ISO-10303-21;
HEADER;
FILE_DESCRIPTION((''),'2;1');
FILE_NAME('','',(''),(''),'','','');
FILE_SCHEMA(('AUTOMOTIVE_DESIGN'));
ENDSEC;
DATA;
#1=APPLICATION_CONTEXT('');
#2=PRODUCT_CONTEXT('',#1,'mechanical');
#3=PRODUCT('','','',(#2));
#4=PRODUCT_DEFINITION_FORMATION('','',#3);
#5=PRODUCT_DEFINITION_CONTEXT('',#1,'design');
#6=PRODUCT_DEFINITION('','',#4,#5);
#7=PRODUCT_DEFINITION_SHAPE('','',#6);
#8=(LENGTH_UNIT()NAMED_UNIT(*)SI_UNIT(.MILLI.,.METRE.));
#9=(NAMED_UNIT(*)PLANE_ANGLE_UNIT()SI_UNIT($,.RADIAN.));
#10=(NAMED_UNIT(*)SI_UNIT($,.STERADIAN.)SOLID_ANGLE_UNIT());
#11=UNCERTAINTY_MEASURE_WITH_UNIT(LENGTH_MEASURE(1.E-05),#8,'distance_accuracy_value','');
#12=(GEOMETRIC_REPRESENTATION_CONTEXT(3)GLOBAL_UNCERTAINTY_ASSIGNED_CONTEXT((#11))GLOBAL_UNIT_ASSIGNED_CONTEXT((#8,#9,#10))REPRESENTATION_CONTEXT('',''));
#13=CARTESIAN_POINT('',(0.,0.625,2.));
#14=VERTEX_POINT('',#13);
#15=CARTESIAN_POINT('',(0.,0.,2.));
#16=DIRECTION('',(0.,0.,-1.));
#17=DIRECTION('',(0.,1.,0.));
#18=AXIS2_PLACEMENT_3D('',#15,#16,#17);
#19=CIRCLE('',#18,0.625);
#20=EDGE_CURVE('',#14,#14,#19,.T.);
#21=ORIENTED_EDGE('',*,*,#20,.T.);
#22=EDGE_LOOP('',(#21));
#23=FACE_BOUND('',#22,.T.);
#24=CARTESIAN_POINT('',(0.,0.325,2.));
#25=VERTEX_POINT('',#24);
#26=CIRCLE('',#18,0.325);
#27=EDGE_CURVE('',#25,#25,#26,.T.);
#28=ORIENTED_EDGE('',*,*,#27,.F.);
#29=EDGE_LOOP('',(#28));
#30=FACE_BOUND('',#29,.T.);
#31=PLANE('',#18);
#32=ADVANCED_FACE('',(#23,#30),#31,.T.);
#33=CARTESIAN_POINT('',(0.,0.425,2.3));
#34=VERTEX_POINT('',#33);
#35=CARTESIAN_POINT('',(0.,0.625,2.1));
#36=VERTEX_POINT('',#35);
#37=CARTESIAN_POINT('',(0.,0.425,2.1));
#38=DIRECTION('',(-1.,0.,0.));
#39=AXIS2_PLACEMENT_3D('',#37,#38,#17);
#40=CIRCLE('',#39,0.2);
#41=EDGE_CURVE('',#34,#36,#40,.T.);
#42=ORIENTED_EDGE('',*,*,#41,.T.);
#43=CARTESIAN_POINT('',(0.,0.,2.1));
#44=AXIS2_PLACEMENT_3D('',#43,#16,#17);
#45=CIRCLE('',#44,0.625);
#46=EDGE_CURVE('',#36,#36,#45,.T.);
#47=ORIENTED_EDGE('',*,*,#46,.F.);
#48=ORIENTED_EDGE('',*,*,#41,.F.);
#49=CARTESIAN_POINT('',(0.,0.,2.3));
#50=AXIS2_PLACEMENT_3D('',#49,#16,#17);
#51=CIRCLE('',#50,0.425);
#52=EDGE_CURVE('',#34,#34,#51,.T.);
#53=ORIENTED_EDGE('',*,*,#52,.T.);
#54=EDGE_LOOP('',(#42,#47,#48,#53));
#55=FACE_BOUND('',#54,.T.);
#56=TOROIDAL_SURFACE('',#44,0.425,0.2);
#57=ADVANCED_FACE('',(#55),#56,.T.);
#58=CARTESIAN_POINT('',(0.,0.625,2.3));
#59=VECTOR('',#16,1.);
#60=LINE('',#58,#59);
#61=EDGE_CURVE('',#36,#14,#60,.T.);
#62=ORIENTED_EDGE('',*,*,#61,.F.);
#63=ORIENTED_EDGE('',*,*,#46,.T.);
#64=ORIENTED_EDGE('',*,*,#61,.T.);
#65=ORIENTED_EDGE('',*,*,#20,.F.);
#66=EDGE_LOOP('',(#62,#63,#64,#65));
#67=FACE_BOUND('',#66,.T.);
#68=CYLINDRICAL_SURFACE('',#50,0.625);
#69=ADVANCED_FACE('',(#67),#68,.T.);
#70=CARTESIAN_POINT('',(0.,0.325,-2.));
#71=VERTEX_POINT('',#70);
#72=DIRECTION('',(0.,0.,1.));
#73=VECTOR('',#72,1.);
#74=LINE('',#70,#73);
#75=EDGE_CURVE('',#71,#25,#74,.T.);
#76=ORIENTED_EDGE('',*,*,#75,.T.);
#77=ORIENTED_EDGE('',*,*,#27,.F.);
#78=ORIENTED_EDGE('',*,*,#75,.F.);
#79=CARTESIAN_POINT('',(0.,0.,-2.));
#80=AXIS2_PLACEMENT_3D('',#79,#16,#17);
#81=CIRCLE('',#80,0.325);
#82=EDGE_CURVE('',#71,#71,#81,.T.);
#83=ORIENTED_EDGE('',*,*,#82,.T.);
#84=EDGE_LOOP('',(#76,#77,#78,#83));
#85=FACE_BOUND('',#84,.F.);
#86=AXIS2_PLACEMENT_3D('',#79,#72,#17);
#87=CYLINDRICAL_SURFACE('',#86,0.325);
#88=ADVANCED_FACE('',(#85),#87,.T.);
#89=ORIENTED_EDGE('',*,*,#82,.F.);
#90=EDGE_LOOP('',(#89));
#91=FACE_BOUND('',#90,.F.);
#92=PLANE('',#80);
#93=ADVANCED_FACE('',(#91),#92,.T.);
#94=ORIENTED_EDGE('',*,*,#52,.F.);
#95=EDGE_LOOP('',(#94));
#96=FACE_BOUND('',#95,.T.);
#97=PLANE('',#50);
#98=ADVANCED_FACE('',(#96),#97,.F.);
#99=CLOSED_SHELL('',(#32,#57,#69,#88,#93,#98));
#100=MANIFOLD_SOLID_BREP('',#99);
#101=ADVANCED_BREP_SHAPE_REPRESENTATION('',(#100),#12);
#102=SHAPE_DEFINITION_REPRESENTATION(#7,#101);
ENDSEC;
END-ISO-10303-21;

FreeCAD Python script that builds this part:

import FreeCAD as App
import Part
import Sketcher
Q = App.Units.Quantity


def edges_at(feature, points):
    """Names of the edges that pass closest to the given points."""
    edges = feature.Shape.Edges
    near = lambda p: min(range(len(edges)), key=lambda i: edges[i].distToShape(Part.Vertex(*p))[0])
    return sorted({f"Edge{near(p) + 1}" for p in points})

doc = App.newDocument("Part")
body = doc.addObject("PartDesign::Body", "Body")

sketch1 = doc.addObject("Sketcher::SketchObject", "Sketch")
body.addObject(sketch1)
sketch1.AttachmentSupport = (doc.YZ_Plane, [""])
sketch1.MapMode = "FlatFace"
sketch1.addGeometry([
    Part.LineSegment(App.Vector(0.625, 2.3, 0), App.Vector(0, 2.3, 0)),
    Part.LineSegment(App.Vector(0, 2.3, 0), App.Vector(0, -2, 0)),
    Part.LineSegment(App.Vector(0, -2, 0), App.Vector(0.325, -2, 0)),
    Part.LineSegment(App.Vector(0.325, -2, 0), App.Vector(0.325, 2, 0)),
    Part.LineSegment(App.Vector(0.325, 2, 0), App.Vector(0.625, 2, 0)),
    Part.LineSegment(App.Vector(0.625, 2, 0), App.Vector(0.625, 2.3, 0)),
], False)
sketch1.addConstraint([
    Sketcher.Constraint("Coincident", 0, 2, 1, 1),
    Sketcher.Constraint("Coincident", 1, 2, 2, 1),
    Sketcher.Constraint("Coincident", 2, 2, 3, 1),
    Sketcher.Constraint("Coincident", 3, 2, 4, 1),
    Sketcher.Constraint("Coincident", 4, 2, 5, 1),
    Sketcher.Constraint("Coincident", 5, 2, 0, 1),
    Sketcher.Constraint("Horizontal", 0),
    Sketcher.Constraint("Vertical", 1),
    Sketcher.Constraint("Horizontal", 2),
    Sketcher.Constraint("Vertical", 3),
    Sketcher.Constraint("Horizontal", 4),
    Sketcher.Constraint("Vertical", 5),
    Sketcher.Constraint("PointOnObject", 0, 2, -2),
    Sketcher.Constraint("Equal", 4, 5),
    Sketcher.Constraint("DistanceY", 3, 1, 3, 2, Q("4 mm")),
    Sketcher.Constraint("DistanceX", 4, 1, 4, 2, Q("0.3 mm")),
    Sketcher.Constraint("DistanceY", 1, 2, -1, 1, Q("2 mm")),
    Sketcher.Constraint("DistanceX", 0, 2, 0, 1, Q("0.625 mm")),
])
revolution = doc.addObject("PartDesign::Revolution", "Revolution")
body.addObject(revolution)
revolution.Profile = sketch1
revolution.ReferenceAxis = (sketch1, ["V_Axis"])
revolution.Angle = 360
doc.recompute()

fillet = doc.addObject("PartDesign::Fillet", "Fillet")
body.addObject(fillet)
fillet.Base = (revolution, edges_at(revolution, [(0, -0.625, 2.3)]))
fillet.Radius = 0.2

doc.recompute()
